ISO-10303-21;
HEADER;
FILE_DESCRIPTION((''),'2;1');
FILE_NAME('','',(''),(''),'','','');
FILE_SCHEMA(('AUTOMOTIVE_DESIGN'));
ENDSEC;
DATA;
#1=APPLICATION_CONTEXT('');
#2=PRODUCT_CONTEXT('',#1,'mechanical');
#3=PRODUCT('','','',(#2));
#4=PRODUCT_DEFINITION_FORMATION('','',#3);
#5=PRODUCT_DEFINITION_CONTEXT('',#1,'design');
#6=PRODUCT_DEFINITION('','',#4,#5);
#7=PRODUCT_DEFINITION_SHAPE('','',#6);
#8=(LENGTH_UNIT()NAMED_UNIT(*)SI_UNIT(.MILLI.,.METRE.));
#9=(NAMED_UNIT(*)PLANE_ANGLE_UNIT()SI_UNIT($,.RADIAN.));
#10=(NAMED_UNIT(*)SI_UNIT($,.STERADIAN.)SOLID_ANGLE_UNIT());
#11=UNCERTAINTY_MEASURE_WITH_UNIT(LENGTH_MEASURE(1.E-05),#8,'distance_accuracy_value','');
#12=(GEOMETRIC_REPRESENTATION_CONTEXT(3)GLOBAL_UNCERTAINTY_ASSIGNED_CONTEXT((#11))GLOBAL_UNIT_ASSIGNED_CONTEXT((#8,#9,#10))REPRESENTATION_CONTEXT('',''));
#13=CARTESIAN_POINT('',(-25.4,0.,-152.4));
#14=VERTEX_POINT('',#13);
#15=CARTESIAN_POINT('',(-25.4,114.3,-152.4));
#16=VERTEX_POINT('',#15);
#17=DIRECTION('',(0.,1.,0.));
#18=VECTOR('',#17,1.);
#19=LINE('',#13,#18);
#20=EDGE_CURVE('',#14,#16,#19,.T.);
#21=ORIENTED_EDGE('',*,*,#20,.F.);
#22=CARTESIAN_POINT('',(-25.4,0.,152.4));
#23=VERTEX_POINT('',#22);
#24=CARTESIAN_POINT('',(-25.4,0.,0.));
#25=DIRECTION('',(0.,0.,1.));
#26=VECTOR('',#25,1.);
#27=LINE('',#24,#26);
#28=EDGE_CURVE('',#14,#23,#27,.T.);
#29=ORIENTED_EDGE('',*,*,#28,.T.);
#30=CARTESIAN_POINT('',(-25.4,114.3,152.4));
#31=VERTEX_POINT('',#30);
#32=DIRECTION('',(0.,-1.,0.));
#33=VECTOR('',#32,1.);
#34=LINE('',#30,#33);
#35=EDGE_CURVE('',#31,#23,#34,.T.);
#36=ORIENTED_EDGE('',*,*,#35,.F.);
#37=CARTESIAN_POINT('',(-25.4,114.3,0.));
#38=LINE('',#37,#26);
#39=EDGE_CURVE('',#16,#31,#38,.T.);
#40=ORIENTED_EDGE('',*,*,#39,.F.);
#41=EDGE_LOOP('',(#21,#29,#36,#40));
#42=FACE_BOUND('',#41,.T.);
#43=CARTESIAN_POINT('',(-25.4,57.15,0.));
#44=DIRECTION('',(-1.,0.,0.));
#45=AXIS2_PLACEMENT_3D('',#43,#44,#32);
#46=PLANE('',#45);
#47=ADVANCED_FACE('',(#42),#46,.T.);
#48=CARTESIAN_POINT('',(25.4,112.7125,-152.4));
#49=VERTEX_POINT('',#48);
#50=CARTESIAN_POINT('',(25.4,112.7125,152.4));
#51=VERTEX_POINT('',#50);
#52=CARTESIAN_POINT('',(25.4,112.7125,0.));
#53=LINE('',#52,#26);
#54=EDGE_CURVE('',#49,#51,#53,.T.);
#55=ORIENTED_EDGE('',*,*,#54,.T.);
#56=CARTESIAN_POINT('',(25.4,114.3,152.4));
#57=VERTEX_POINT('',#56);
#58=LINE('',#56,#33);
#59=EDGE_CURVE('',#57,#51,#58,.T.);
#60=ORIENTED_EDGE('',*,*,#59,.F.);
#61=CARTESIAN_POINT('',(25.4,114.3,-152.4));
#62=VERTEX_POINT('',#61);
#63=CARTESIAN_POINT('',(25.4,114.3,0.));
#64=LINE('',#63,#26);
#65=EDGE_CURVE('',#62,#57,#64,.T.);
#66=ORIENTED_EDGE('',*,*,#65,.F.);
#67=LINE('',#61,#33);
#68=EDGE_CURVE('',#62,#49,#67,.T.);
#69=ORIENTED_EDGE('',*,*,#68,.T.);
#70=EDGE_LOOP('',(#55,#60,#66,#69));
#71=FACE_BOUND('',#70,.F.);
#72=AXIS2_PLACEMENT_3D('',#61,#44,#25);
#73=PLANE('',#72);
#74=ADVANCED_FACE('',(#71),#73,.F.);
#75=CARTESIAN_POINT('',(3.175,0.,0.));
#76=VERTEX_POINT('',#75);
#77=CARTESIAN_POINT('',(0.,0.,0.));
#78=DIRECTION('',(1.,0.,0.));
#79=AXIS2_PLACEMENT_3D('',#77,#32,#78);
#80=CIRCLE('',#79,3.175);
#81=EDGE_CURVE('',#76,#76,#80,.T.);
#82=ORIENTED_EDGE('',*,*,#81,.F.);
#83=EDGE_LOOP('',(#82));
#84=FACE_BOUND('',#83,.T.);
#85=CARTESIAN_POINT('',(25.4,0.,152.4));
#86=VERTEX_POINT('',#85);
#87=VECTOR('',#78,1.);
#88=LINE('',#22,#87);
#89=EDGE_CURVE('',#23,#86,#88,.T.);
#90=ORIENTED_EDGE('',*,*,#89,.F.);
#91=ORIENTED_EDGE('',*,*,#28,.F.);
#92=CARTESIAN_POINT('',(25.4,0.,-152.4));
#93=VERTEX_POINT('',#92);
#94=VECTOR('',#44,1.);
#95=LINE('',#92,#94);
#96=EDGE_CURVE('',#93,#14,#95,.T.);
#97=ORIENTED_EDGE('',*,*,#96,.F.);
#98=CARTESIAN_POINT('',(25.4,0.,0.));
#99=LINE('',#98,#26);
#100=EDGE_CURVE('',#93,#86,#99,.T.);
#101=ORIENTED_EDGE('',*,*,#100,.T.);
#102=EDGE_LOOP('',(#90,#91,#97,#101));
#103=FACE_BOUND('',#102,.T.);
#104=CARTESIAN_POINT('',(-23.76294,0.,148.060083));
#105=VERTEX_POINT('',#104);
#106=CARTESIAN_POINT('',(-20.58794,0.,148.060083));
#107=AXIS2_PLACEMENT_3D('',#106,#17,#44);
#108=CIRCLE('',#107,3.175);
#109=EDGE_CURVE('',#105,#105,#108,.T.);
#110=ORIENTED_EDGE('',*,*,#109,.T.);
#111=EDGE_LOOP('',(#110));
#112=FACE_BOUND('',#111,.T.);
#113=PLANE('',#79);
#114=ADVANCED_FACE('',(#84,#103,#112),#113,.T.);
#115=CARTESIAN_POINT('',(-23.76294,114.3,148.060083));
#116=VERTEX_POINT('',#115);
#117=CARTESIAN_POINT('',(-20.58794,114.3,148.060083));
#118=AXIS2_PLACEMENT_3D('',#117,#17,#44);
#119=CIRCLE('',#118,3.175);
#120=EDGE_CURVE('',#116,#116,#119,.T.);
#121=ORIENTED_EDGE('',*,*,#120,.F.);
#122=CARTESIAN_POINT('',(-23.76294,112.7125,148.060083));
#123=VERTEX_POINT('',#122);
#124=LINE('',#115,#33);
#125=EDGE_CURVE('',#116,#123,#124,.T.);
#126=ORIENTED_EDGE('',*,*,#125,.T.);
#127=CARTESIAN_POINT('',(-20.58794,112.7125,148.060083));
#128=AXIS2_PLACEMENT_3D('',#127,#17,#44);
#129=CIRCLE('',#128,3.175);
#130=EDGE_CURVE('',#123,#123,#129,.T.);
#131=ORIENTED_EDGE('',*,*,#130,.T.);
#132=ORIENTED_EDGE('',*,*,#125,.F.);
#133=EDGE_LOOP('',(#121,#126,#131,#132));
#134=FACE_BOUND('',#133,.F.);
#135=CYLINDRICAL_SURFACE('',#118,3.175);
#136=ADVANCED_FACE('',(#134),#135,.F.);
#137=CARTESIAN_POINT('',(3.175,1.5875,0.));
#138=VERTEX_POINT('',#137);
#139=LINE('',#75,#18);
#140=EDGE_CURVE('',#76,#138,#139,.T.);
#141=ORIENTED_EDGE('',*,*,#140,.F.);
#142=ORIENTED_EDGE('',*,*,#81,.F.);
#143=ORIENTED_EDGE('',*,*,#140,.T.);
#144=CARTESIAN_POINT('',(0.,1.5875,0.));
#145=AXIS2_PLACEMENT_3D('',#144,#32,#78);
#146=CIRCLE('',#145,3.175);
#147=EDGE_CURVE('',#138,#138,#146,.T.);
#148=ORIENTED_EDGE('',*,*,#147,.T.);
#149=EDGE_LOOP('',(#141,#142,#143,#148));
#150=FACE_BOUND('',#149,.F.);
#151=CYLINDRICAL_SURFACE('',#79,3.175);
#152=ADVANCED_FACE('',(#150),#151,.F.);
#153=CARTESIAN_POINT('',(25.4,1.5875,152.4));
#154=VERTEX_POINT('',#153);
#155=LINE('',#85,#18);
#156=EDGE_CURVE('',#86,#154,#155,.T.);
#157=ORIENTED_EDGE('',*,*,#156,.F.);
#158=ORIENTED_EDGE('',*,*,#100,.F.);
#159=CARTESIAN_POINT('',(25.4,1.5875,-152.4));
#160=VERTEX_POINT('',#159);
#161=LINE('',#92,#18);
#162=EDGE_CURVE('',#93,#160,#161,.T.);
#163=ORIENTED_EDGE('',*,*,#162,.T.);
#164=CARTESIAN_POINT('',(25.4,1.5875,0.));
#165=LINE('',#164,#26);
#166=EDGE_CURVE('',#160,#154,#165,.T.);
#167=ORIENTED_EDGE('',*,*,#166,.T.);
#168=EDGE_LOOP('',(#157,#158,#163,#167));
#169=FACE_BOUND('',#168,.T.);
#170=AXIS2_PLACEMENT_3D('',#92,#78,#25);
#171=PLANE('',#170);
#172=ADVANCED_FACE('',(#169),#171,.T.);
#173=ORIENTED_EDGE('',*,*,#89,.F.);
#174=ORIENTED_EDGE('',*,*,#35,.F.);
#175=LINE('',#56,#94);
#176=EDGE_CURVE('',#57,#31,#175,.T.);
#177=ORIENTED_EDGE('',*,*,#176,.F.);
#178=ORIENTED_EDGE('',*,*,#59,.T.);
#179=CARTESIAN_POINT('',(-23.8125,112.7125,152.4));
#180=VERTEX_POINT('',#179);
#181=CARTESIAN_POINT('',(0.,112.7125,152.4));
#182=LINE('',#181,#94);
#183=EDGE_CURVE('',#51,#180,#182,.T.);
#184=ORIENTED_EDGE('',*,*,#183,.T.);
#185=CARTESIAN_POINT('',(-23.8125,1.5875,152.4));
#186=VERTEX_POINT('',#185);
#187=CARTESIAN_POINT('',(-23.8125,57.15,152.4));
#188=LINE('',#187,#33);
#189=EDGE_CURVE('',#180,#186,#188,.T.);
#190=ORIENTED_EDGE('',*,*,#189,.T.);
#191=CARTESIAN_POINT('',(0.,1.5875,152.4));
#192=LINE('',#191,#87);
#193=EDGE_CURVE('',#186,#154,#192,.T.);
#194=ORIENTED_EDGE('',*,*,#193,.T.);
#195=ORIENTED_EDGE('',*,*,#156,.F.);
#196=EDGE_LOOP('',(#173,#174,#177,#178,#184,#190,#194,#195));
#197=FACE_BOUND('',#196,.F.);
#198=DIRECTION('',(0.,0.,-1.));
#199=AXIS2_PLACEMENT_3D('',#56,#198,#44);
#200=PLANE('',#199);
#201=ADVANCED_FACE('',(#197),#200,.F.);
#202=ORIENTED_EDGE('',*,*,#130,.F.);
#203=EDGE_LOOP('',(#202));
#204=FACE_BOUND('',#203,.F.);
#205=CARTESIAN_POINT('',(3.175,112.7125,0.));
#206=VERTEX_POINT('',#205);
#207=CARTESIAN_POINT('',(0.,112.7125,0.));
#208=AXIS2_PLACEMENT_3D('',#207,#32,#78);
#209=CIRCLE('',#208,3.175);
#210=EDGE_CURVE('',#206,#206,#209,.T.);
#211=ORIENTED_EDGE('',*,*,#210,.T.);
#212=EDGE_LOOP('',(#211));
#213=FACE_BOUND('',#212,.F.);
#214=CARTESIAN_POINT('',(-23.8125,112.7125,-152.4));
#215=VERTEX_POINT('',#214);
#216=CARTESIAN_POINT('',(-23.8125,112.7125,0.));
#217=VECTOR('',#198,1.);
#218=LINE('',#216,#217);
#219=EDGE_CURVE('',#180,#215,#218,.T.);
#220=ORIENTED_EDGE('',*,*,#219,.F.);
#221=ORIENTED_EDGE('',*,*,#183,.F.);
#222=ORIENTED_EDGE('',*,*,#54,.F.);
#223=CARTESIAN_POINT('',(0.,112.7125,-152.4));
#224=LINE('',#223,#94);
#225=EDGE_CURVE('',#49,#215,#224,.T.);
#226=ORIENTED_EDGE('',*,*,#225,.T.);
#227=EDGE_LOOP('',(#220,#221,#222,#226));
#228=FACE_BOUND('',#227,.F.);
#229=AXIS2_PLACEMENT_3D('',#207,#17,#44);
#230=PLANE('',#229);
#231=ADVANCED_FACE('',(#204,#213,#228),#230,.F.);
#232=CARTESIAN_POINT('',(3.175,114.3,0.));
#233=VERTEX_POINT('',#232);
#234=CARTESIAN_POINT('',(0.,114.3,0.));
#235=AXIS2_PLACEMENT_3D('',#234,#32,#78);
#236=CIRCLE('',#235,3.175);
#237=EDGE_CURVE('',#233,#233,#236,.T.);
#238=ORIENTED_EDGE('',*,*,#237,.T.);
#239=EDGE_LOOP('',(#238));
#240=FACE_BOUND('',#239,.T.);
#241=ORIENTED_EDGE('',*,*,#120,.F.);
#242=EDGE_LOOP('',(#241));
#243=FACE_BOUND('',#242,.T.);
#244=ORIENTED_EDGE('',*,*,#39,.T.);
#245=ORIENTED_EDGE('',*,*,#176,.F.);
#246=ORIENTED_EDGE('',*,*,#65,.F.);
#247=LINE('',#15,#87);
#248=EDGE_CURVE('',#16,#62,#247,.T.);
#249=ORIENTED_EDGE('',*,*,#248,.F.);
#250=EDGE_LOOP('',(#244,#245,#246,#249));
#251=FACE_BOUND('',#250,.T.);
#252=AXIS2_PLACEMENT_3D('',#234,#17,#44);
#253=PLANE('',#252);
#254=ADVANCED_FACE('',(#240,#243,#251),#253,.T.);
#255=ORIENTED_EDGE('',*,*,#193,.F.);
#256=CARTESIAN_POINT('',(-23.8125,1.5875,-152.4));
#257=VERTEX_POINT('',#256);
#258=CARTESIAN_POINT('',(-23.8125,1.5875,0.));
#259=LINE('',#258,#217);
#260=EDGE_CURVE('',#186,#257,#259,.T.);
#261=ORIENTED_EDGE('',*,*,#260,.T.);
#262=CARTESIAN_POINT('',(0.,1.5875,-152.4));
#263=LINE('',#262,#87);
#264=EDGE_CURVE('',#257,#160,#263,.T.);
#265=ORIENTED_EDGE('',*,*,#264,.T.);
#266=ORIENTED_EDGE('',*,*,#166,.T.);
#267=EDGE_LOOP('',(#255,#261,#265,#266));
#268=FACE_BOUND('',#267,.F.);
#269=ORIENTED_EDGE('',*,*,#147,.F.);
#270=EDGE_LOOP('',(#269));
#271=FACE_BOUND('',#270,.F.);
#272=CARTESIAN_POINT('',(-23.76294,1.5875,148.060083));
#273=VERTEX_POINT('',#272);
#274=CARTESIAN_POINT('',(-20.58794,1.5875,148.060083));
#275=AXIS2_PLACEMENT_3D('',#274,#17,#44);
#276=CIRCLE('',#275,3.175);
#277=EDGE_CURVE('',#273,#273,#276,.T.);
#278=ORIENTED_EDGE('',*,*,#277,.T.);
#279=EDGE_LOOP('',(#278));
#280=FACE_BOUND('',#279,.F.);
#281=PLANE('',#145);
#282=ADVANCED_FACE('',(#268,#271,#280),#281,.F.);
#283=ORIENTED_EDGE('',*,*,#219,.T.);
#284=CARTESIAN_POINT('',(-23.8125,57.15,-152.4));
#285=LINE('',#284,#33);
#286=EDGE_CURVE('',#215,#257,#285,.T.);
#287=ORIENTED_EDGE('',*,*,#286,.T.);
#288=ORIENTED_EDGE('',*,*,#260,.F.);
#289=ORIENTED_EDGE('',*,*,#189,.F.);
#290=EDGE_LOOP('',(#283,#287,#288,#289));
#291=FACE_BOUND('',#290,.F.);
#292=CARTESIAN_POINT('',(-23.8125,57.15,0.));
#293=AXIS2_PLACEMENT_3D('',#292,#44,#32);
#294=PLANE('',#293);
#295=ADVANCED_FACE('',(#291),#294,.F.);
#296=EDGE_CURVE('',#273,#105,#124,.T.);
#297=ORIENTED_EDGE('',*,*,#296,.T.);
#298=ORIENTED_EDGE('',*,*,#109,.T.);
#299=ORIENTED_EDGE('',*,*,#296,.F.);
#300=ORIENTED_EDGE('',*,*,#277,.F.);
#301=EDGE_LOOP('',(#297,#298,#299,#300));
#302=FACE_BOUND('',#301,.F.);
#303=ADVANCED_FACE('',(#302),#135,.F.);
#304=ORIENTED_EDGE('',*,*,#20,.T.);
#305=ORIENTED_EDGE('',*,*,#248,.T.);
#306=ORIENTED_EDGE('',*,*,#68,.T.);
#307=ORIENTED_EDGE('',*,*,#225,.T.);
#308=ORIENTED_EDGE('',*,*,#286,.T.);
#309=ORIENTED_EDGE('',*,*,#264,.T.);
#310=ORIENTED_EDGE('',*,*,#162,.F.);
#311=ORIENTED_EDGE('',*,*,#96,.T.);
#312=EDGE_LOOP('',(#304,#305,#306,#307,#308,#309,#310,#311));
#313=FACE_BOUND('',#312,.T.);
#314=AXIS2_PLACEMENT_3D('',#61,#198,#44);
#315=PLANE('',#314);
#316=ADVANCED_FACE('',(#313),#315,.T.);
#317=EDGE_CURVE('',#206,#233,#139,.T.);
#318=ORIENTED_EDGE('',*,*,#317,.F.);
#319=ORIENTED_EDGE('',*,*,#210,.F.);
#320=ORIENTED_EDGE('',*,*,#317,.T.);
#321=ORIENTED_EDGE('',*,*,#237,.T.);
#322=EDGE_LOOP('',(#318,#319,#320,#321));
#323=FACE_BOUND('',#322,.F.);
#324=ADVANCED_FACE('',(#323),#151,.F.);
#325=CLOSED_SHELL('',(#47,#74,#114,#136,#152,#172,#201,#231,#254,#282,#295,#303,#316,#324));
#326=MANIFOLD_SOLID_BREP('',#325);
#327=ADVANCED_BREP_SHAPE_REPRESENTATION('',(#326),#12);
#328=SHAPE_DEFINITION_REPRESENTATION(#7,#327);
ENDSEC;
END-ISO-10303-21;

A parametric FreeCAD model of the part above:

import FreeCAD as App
import Part
import Sketcher
from FreeCAD import Vector
Q = App.Units.Quantity


def add_polygon(sketch, points):
    """Adds a closed chain of lines whose ends are joined by coincident constraints."""
    first, n = sketch.GeometryCount, len(points)
    for a, b in zip(points, points[1:] + points[:1]):
        sketch.addGeometry(Part.LineSegment(App.Vector(*a, 0), App.Vector(*b, 0)), False)
    for i in range(n):
        sketch.addConstraint(Sketcher.Constraint("Coincident", first + i, 2, first + (i + 1) % n, 1))

doc = App.newDocument("Part")
body = doc.addObject("PartDesign::Body", "Body")

# Sketch on XZ plane
sketch1 = body.newObject("Sketcher::SketchObject", "Sketch")
sketch1.AttachmentSupport = (doc.getObject("XZ_Plane"), [""])
sketch1.MapMode = "FlatFace"
add_polygon(sketch1, [(-25, 152), (-25, -152), (25, -152), (25, 152)])  # lines 0-3
sketch1.addConstraint([
    Sketcher.Constraint("Vertical", 0),
    Sketcher.Constraint("Horizontal", 1),
    Sketcher.Constraint("Vertical", 2),
    Sketcher.Constraint("Horizontal", 3),
    Sketcher.Constraint("Symmetric", 0, 2, 2, 2, -1, 1),
    Sketcher.Constraint("DistanceX", 1, 1, 1, 2, Q("2 in")),
    Sketcher.Constraint("DistanceY", 0, 2, 0, 1, Q("12 in")),
])
pad1 = body.newObject("PartDesign::Pad", "Pad")
pad1.Profile = sketch1
pad1.Length = Q("0.0625 in")
pad1.Reversed = True

# Sketch on YZ plane
sketch2 = body.newObject("Sketcher::SketchObject", "Sketch001")
sketch2.AttachmentSupport = (doc.getObject("YZ_Plane"), [""])
sketch2.MapMode = "FlatFace"
sketch2.AttachmentOffset = App.Placement(Vector(0, 0, -1 * 25.4), App.Rotation())
add_polygon(sketch2, [(114, 152), (114, -152), (0, -152), (0, 152)])  # lines 0-3
sketch2.addConstraint([
    Sketcher.Constraint("Vertical", 0),
    Sketcher.Constraint("Horizontal", 1),
    Sketcher.Constraint("Vertical", 2),
    Sketcher.Constraint("Horizontal", 3),
    Sketcher.Constraint("Symmetric", 1, 2, 2, 2, -1, 1),
    Sketcher.Constraint("DistanceY", 0, 2, 0, 1, Q("12 in")),
    Sketcher.Constraint("DistanceX", 1, 2, 1, 1, Q("4.5 in")),
])
pad2 = body.newObject("PartDesign::Pad", "Pad001")
pad2.Profile = sketch2
pad2.Length = Q("0.0625 in")

# Sketch on XZ plane
sketch3 = body.newObject("Sketcher::SketchObject", "Sketch002")
sketch3.AttachmentSupport = (doc.getObject("XZ_Plane"), [""])
sketch3.MapMode = "FlatFace"
sketch3.AttachmentOffset = App.Placement(Vector(0, 0, -4.5 * 25.4), App.Rotation())
add_polygon(sketch3, [(25, 152), (25, -152), (-25, -152), (-25, 152)])  # lines 0-3
sketch3.addConstraint([
    Sketcher.Constraint("Vertical", 0),
    Sketcher.Constraint("Horizontal", 1),
    Sketcher.Constraint("Vertical", 2),
    Sketcher.Constraint("Horizontal", 3),
    Sketcher.Constraint("Symmetric", 0, 2, 2, 2, -1, 1),
    Sketcher.Constraint("DistanceX", 1, 2, 1, 1, Q("2 in")),
    Sketcher.Constraint("DistanceY", 0, 2, 0, 1, Q("12 in")),
])
pad3 = body.newObject("PartDesign::Pad", "Pad002")
pad3.Profile = sketch3
pad3.Length = Q("0.0625 in")

# Sketch on XZ plane
sketch4 = body.newObject("Sketcher::SketchObject", "Sketch003")
sketch4.AttachmentSupport = (doc.getObject("XZ_Plane"), [""])
sketch4.MapMode = "FlatFace"
sketch4.AttachmentOffset = App.Placement(Vector(0, 0, -4.5 * 25.4), App.Rotation())
sketch4.addGeometry(Part.Circle(Vector(-20.6, 148.1, 0), Vector(0, 0, 1), 3.2), False)
sketch4.addConstraint([
    Sketcher.Constraint("Diameter", 0, Q("0.25 in")),
    Sketcher.Constraint("DistanceX", 0, 3, -1, 1, 20.58794),
    Sketcher.Constraint("DistanceY", -1, 1, 0, 3, 148.060083),
])
pocket1 = body.newObject("PartDesign::Pocket", "Pocket")
pocket1.Profile = sketch4
pocket1.Length = Q("5.39 in")
pocket1.Reversed = True

# Sketch on XZ plane
sketch5 = body.newObject("Sketcher::SketchObject", "Sketch004")
sketch5.AttachmentSupport = (doc.getObject("XZ_Plane"), [""])
sketch5.MapMode = "FlatFace"
sketch5.addGeometry(Part.Circle(Vector(0, 0, 0), Vector(0, 0, 1), 3.2), False)
sketch5.addConstraint([
    Sketcher.Constraint("Coincident", 0, 3, -1, 1),
    Sketcher.Constraint("Diameter", 0, Q("0.25 in")),
])
pocket2 = body.newObject("PartDesign::Pocket", "Pocket001")
pocket2.Profile = sketch5
pocket2.Length = Q("5.76 in")

doc.recompute()
